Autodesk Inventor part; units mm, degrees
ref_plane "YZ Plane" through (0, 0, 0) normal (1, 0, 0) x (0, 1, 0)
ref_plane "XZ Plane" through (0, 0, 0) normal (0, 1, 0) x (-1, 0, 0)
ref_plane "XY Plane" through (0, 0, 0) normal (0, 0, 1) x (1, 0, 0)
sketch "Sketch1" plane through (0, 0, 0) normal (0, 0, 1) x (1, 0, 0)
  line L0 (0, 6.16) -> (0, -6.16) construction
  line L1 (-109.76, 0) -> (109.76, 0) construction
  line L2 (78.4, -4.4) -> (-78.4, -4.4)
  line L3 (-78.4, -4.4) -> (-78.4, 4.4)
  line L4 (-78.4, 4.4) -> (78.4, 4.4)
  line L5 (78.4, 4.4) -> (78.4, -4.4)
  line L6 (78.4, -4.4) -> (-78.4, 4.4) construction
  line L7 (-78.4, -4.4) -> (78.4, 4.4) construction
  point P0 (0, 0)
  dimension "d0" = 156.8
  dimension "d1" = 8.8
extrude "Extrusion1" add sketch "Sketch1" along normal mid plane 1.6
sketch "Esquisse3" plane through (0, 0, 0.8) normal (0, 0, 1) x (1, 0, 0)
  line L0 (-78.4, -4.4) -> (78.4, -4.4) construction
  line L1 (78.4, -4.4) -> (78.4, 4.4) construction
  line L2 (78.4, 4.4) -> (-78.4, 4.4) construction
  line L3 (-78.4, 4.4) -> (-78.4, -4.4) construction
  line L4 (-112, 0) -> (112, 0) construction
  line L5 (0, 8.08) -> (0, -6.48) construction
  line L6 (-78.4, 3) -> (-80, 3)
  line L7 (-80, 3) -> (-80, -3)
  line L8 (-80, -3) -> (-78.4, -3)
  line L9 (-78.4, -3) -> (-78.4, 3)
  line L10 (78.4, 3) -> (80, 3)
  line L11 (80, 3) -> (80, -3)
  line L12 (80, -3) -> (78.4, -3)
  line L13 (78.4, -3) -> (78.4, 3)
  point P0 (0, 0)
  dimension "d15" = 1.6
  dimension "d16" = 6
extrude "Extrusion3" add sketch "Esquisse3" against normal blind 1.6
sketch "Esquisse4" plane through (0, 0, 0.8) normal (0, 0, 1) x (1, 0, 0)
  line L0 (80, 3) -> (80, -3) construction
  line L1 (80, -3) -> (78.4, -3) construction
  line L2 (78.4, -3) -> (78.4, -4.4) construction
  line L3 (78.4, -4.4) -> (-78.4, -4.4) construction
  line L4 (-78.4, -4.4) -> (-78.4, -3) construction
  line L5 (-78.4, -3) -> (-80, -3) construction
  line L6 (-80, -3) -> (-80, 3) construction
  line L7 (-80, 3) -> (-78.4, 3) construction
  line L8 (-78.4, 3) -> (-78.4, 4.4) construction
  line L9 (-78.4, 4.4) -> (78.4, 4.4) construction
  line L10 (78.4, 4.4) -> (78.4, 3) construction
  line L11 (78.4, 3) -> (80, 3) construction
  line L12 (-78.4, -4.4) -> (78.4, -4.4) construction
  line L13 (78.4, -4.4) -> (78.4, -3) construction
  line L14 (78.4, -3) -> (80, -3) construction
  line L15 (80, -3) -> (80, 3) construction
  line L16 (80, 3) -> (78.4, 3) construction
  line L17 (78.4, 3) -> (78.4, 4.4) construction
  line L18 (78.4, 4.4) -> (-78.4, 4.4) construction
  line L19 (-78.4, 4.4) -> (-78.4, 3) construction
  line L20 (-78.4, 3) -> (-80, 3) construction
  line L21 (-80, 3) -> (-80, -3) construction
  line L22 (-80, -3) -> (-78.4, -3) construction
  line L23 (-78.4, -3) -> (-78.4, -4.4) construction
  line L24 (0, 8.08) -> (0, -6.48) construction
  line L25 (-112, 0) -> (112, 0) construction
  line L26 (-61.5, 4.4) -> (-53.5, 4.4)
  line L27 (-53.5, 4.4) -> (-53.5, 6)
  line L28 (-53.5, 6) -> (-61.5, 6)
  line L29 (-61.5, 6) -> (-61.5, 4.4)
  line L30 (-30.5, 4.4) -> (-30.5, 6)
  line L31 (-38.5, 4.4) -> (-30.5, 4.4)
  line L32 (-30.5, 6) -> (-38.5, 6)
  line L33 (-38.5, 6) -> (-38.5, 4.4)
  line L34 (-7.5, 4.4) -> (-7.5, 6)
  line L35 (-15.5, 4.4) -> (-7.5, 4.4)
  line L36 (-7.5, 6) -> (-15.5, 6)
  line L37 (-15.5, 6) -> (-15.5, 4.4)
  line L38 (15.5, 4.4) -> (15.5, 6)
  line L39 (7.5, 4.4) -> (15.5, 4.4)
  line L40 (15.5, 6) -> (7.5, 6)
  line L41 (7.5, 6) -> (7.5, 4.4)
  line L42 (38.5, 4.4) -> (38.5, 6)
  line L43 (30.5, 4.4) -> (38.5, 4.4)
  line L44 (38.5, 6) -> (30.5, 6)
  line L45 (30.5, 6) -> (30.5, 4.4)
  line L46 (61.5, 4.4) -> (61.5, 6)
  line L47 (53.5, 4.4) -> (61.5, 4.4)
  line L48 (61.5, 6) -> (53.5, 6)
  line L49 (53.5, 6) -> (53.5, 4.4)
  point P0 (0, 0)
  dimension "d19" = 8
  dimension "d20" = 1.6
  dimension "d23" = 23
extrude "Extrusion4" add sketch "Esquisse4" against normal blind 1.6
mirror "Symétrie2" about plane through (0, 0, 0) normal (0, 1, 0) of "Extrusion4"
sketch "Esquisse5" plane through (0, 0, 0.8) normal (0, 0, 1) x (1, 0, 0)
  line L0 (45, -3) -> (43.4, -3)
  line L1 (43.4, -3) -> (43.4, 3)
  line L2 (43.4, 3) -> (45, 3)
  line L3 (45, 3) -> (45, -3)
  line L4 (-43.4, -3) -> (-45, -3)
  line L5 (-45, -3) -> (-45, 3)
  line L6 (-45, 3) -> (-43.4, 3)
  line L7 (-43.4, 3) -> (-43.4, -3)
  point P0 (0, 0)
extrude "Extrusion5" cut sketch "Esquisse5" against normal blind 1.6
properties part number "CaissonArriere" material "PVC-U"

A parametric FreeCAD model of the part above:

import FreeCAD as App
import Part
import Sketcher

V = App.Vector


def add_polygon(sketch, points):
    """Adds a closed chain of lines whose ends are joined by coincident constraints."""
    first, n = sketch.GeometryCount, len(points)
    for a, b in zip(points, points[1:] + points[:1]):
        sketch.addGeometry(Part.LineSegment(App.Vector(*a, 0), App.Vector(*b, 0)), False)
    for i in range(n):
        sketch.addConstraint(Sketcher.Constraint("Coincident", first + i, 2, first + (i + 1) % n, 1))

doc = App.newDocument("Part")
body = doc.addObject("PartDesign::Body", "Body")

# Sketch on XY plane
sketch1 = doc.addObject("Sketcher::SketchObject", "Sketch")
body.addObject(sketch1)
sketch1.AttachmentSupport = (doc.XY_Plane, [""])
sketch1.MapMode = "FlatFace"
add_polygon(sketch1, [(-78, -4), (78, -4), (78, 4), (-78, 4)])  # lines 0-3
sketch1.addConstraint(Sketcher.Constraint("Horizontal", 0))
sketch1.addConstraint(Sketcher.Constraint("Vertical", 1))
sketch1.addConstraint(Sketcher.Constraint("Horizontal", 2))
sketch1.addConstraint(Sketcher.Constraint("Vertical", 3))
sketch1.addConstraint(Sketcher.Constraint("Symmetric", 0, 2, 2, 2, -1, 1))
sketch1.addConstraint(Sketcher.Constraint("DistanceX", 0, 1, 0, 2, 156.8))
sketch1.addConstraint(Sketcher.Constraint("DistanceY", 1, 1, 1, 2, 8.8))
pad1 = doc.addObject("PartDesign::Pad", "Pad")
body.addObject(pad1)
pad1.Profile = sketch1
pad1.Length = 1.6
pad1.Midplane = True

# Sketch on XY plane
sketch2 = doc.addObject("Sketcher::SketchObject", "Sketch001")
body.addObject(sketch2)
sketch2.AttachmentSupport = (doc.XY_Plane, [""])
sketch2.MapMode = "FlatFace"
sketch2.AttachmentOffset = App.Placement(V(0, 0, 0.8), App.Rotation())
add_polygon(sketch2, [(-78.4, -3), (-78.4, 3), (-80, 3), (-80, -3)])  # lines 0-3
add_polygon(sketch2, [(80, 3), (78.4, 3), (78.4, -3), (80, -3)])  # lines 4-7
sketch2.addConstraint(Sketcher.Constraint("Vertical", 0))
sketch2.addConstraint(Sketcher.Constraint("Horizontal", 1))
sketch2.addConstraint(Sketcher.Constraint("Vertical", 2))
sketch2.addConstraint(Sketcher.Constraint("Horizontal", 3))
sketch2.addConstraint(Sketcher.Constraint("Horizontal", 4))
sketch2.addConstraint(Sketcher.Constraint("Vertical", 5))
sketch2.addConstraint(Sketcher.Constraint("Horizontal", 6))
sketch2.addConstraint(Sketcher.Constraint("Vertical", 7))
sketch2.addConstraint(Sketcher.Constraint("Symmetric", 3, 2, 4, 2, -1, 1))
sketch2.addConstraint(Sketcher.Constraint("Symmetric", 1, 2, 6, 2, -1, 1))
sketch2.addConstraint(Sketcher.Constraint("Horizontal", 1, 2, 4, 2))
sketch2.addConstraint(Sketcher.Constraint("DistanceY", 0, 1, 0, 2, 6.0))
sketch2.addConstraint(Sketcher.Constraint("DistanceX", 1, 2, 1, 1, 1.6))
sketch2.addConstraint(Sketcher.Constraint("DistanceX", 1, 2, -1, 1, 80.0))
pad2 = doc.addObject("PartDesign::Pad", "Pad001")
body.addObject(pad2)
pad2.Profile = sketch2
pad2.Length = 1.6
pad2.Reversed = True

# Sketch on XY plane
sketch3 = doc.addObject("Sketcher::SketchObject", "Sketch002")
body.addObject(sketch3)
sketch3.AttachmentSupport = (doc.XY_Plane, [""])
sketch3.MapMode = "FlatFace"
sketch3.AttachmentOffset = App.Placement(V(0, 0, 0.8), App.Rotation())
add_polygon(sketch3, [(-61.5, 6), (-61.5, 4.4), (-53.5, 4.4), (-53.5, 6)])  # lines 0-3
add_polygon(sketch3, [(-38.5, 4.4), (-30.5, 4.4), (-30.5, 6), (-38.5, 6)])  # lines 4-7
add_polygon(sketch3, [(-15.5, 4.4), (-7.5, 4.4), (-7.5, 6), (-15.5, 6)])  # lines 8-11
add_polygon(sketch3, [(7.5, 4.4), (15.5, 4.4), (15.5, 6), (7.5, 6)])  # lines 12-15
add_polygon(sketch3, [(30.5, 4.4), (38.5, 4.4), (38.5, 6), (30.5, 6)])  # lines 16-19
add_polygon(sketch3, [(53.5, 4.4), (61.5, 4.4), (61.5, 6), (53.5, 6)])  # lines 20-23
sketch3.addConstraint(Sketcher.Constraint("Vertical", 0))
sketch3.addConstraint(Sketcher.Constraint("Horizontal", 1))
sketch3.addConstraint(Sketcher.Constraint("Vertical", 2))
sketch3.addConstraint(Sketcher.Constraint("Horizontal", 3))
sketch3.addConstraint(Sketcher.Constraint("Horizontal", 4))
sketch3.addConstraint(Sketcher.Constraint("Vertical", 5))
sketch3.addConstraint(Sketcher.Constraint("Horizontal", 6))
sketch3.addConstraint(Sketcher.Constraint("Vertical", 7))
sketch3.addConstraint(Sketcher.Constraint("Horizontal", 8))
sketch3.addConstraint(Sketcher.Constraint("Vertical", 9))
sketch3.addConstraint(Sketcher.Constraint("Horizontal", 10))
sketch3.addConstraint(Sketcher.Constraint("Vertical", 11))
sketch3.addConstraint(Sketcher.Constraint("Horizontal", 12))
sketch3.addConstraint(Sketcher.Constraint("Vertical", 13))
sketch3.addConstraint(Sketcher.Constraint("Horizontal", 14))
sketch3.addConstraint(Sketcher.Constraint("Vertical", 15))
sketch3.addConstraint(Sketcher.Constraint("Horizontal", 16))
sketch3.addConstraint(Sketcher.Constraint("Vertical", 17))
sketch3.addConstraint(Sketcher.Constraint("Horizontal", 18))
sketch3.addConstraint(Sketcher.Constraint("Vertical", 19))
sketch3.addConstraint(Sketcher.Constraint("Horizontal", 20))
sketch3.addConstraint(Sketcher.Constraint("Vertical", 21))
sketch3.addConstraint(Sketcher.Constraint("Horizontal", 22))
sketch3.addConstraint(Sketcher.Constraint("Vertical", 23))
sketch3.addConstraint(Sketcher.Constraint("Symmetric", 11, 2, 12, 2, -2))
sketch3.addConstraint(Sketcher.Constraint("Symmetric", 9, 2, 14, 2, -2))
sketch3.addConstraint(Sketcher.Constraint("Symmetric", 7, 2, 16, 2, -2))
sketch3.addConstraint(Sketcher.Constraint("Symmetric", 5, 2, 18, 2, -2))
sketch3.addConstraint(Sketcher.Constraint("Symmetric", 0, 2, 20, 2, -2))
sketch3.addConstraint(Sketcher.Constraint("Symmetric", 2, 2, 22, 2, -2))
sketch3.addConstraint(Sketcher.Constraint("Horizontal", 1, 2, 4, 2))
sketch3.addConstraint(Sketcher.Constraint("Horizontal", 3, 2, 5, 2))
sketch3.addConstraint(Sketcher.Constraint("Horizontal", 7, 2, 8, 2))
sketch3.addConstraint(Sketcher.Constraint("Horizontal", 6, 2, 9, 2))
sketch3.addConstraint(Sketcher.Constraint("Equal", 3, 4))
sketch3.addConstraint(Sketcher.Constraint("Equal", 6, 8))
sketch3.addConstraint(Sketcher.Constraint("DistanceX", 1, 1, 1, 2, 8.0))
sketch3.addConstraint(Sketcher.Constraint("DistanceY", 0, 2, 0, 1, 1.6))
sketch3.addConstraint(Sketcher.Constraint("DistanceX", 1, 2, 4, 2, 23.0))
sketch3.addConstraint(Sketcher.Constraint("DistanceX", 4, 2, 8, 2, 23.0))
sketch3.addConstraint(Sketcher.Constraint("DistanceX", 8, 2, 12, 2, 23.0))
sketch3.addConstraint(Sketcher.Constraint("DistanceY", -1, 1, 2, 2, 6.0))
pad3 = doc.addObject("PartDesign::Pad", "Pad002")
body.addObject(pad3)
pad3.Profile = sketch3
pad3.Length = 1.6
pad3.Reversed = True
doc.recompute()

mirrored = doc.addObject("PartDesign::Mirrored", "Mirrored")
body.addObject(mirrored)
mirrored.Originals = [pad3]
mirrored.MirrorPlane = (doc.XZ_Plane, [""])
body.Tip = mirrored

# Sketch on XY plane
sketch4 = doc.addObject("Sketcher::SketchObject", "Sketch003")
body.addObject(sketch4)
sketch4.AttachmentSupport = (doc.XY_Plane, [""])
sketch4.MapMode = "FlatFace"
sketch4.AttachmentOffset = App.Placement(V(0, 0, 0.8), App.Rotation())
add_polygon(sketch4, [(43.4, -3), (45, -3), (45, 3), (43.4, 3)])  # lines 0-3
add_polygon(sketch4, [(-45, -3), (-43.4, -3), (-43.4, 3), (-45, 3)])  # lines 4-7
sketch4.addConstraint(Sketcher.Constraint("Horizontal", 0))
sketch4.addConstraint(Sketcher.Constraint("Vertical", 1))
sketch4.addConstraint(Sketcher.Constraint("Horizontal", 2))
sketch4.addConstraint(Sketcher.Constraint("Vertical", 3))
sketch4.addConstraint(Sketcher.Constraint("Horizontal", 4))
sketch4.addConstraint(Sketcher.Constraint("Vertical", 5))
sketch4.addConstraint(Sketcher.Constraint("Horizontal", 6))
sketch4.addConstraint(Sketcher.Constraint("Vertical", 7))
sketch4.addConstraint(Sketcher.Constraint("Symmetric", 2, 2, 4, 2, -1, 1))
sketch4.addConstraint(Sketcher.Constraint("Symmetric", 0, 2, 6, 2, -1, 1))
sketch4.addConstraint(Sketcher.Constraint("Horizontal", 3, 2, 4, 2))
sketch4.addConstraint(Sketcher.Constraint("DistanceY", 1, 1, 1, 2, 6.0))
sketch4.addConstraint(Sketcher.Constraint("DistanceX", 0, 1, 0, 2, 1.6))
sketch4.addConstraint(Sketcher.Constraint("DistanceX", -1, 1, 0, 2, 45.0))
pocket1 = doc.addObject("PartDesign::Pocket", "Pocket")
body.addObject(pocket1)
pocket1.Profile = sketch4
pocket1.Length = 1.6

doc.recompute()
